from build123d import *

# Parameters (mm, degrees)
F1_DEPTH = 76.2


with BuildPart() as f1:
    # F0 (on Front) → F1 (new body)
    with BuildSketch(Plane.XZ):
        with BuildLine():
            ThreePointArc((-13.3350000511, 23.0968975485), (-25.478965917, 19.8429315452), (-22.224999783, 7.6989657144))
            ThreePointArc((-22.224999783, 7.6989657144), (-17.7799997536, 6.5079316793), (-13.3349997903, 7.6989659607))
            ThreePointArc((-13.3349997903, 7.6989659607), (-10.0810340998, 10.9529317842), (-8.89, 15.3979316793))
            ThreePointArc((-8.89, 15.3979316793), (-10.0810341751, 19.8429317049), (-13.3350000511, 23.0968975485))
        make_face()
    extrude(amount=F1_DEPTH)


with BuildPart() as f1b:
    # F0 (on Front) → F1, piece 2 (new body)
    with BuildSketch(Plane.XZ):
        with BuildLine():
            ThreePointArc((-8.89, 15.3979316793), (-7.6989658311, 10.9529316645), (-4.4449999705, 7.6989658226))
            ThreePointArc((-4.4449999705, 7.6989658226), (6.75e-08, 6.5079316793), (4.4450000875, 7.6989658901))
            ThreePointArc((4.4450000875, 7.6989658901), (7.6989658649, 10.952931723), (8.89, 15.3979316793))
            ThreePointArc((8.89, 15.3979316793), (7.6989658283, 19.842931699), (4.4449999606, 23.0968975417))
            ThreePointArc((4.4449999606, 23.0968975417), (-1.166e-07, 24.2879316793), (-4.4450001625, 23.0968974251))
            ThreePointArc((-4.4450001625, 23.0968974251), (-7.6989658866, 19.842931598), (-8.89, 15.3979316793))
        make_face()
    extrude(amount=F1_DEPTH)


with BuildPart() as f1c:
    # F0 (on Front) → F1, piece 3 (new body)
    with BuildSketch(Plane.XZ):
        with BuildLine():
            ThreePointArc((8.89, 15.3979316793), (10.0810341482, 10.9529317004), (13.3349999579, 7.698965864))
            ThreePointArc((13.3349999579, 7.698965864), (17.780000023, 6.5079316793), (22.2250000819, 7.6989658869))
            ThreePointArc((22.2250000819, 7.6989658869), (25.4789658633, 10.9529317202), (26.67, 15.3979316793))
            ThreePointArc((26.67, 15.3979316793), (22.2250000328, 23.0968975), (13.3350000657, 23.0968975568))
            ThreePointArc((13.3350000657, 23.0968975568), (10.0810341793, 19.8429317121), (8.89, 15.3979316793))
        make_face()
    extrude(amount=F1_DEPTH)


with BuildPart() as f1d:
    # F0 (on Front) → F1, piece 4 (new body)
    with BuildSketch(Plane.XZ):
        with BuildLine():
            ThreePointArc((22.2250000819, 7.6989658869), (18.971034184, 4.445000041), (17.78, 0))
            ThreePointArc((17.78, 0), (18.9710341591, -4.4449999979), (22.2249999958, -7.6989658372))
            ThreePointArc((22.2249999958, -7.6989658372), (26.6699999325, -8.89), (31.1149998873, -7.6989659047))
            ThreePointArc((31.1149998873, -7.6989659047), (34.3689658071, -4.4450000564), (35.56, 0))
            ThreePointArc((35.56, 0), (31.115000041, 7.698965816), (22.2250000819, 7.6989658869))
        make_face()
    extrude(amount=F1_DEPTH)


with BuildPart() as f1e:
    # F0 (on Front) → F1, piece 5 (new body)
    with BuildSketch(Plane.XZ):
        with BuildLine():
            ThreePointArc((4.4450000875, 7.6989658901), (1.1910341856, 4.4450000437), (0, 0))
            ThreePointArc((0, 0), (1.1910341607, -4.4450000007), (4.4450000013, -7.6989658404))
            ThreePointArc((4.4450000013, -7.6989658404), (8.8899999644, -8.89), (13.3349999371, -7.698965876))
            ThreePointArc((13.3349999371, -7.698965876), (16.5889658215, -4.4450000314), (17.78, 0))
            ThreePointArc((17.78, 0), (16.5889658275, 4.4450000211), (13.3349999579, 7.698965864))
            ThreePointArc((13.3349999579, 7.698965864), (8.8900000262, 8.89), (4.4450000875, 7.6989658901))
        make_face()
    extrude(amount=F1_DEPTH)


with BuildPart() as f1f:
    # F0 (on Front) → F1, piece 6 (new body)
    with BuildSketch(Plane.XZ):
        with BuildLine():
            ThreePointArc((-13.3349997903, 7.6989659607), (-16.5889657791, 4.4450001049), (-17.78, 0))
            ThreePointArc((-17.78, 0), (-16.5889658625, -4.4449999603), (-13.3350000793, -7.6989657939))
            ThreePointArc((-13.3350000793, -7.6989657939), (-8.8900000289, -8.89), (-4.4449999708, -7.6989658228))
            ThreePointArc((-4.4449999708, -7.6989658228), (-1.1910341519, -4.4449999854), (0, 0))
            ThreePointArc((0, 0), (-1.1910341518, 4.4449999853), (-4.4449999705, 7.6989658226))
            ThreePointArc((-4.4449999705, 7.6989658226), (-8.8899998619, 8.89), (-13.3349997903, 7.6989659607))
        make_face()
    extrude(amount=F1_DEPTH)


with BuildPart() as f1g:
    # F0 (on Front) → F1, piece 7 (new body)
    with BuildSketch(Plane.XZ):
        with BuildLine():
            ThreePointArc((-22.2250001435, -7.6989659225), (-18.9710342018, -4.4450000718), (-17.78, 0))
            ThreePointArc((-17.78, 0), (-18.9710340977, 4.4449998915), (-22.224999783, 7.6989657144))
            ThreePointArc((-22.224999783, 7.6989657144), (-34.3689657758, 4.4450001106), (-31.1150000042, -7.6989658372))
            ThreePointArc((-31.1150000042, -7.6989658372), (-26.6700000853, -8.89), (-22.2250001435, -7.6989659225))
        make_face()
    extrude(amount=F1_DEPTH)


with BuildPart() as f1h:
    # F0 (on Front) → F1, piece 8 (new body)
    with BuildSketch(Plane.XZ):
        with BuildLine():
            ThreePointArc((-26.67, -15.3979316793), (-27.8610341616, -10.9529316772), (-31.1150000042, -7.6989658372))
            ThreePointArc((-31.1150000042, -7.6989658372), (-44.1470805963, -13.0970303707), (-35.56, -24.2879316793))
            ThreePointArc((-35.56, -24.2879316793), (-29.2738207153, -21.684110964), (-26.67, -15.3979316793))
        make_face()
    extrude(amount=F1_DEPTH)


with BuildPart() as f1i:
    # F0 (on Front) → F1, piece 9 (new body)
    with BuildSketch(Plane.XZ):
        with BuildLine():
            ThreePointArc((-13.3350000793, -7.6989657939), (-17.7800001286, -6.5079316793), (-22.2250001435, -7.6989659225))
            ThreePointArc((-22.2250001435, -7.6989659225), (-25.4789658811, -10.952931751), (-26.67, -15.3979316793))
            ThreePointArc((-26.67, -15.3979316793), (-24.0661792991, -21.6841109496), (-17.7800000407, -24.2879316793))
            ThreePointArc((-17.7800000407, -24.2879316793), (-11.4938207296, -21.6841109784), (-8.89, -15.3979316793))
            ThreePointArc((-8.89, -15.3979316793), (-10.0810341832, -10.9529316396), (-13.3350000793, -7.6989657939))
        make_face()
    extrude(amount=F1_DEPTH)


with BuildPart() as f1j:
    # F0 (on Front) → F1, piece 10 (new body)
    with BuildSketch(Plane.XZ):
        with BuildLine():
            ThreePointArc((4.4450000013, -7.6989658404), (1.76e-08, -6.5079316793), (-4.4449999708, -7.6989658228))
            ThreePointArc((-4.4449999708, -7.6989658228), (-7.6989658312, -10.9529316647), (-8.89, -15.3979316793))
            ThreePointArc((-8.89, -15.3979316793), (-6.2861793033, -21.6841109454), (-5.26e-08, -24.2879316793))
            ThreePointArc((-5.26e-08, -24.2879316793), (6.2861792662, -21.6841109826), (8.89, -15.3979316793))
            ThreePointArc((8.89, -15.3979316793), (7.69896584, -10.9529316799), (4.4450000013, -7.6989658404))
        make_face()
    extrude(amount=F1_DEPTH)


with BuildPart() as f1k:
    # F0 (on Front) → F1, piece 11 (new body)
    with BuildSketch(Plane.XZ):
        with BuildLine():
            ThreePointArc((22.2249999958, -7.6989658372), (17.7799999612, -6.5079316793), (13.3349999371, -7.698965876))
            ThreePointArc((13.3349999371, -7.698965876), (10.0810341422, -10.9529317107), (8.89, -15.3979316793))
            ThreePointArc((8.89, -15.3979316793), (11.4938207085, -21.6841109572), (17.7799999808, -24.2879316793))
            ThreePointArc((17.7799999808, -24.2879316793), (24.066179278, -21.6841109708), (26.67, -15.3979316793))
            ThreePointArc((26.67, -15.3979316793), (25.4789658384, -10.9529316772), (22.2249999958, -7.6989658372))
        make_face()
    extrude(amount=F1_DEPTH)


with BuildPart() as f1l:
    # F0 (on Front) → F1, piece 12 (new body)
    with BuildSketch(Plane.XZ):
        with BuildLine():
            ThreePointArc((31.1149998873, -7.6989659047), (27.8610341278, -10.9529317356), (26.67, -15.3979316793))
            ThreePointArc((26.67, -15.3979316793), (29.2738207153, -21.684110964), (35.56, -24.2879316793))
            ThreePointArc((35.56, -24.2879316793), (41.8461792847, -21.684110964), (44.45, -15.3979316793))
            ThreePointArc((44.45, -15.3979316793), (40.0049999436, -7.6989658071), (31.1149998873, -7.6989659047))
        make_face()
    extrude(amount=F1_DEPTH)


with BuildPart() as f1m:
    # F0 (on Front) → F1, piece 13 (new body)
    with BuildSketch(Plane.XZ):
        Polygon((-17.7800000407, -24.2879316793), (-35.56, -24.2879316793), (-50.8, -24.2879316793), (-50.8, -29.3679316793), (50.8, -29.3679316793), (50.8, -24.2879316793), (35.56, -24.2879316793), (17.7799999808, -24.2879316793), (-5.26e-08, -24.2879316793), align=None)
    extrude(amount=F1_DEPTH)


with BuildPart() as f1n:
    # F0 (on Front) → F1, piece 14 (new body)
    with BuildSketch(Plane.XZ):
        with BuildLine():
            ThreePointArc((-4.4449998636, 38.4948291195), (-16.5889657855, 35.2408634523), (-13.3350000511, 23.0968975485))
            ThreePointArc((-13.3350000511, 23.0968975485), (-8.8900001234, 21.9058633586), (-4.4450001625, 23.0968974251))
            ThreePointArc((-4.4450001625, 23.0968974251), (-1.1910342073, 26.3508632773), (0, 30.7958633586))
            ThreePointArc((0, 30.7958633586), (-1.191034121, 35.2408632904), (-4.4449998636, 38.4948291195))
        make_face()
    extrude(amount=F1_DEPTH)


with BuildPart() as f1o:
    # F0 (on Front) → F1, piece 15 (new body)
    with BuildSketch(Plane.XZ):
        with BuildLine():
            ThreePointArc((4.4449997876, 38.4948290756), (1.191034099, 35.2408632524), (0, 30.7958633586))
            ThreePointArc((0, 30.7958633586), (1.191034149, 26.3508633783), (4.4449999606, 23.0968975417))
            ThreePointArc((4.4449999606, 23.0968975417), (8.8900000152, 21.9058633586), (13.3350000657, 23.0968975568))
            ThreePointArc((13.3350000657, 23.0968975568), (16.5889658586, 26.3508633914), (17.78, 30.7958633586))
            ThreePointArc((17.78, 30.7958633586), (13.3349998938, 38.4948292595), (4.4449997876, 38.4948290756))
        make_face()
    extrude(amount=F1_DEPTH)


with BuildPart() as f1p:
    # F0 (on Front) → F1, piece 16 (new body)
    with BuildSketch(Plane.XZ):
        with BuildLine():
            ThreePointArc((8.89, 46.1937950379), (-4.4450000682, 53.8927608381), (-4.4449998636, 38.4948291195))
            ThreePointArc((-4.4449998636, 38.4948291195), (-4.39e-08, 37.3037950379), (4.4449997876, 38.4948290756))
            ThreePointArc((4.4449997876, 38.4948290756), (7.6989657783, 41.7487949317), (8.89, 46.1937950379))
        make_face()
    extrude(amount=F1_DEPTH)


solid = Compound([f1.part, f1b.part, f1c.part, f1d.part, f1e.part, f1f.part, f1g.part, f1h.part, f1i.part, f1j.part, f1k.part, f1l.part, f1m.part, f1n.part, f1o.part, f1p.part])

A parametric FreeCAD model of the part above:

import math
import FreeCAD as App
import Part
import Sketcher
Q = App.Units.Quantity

doc = App.newDocument("Part")
body = doc.addObject("PartDesign::Body", "Body")

# Sketch on XZ plane
sketch1 = body.newObject("Sketcher::SketchObject", "Sketch")
sketch1.AttachmentSupport = (doc.getObject("XZ_Plane"), [""])
sketch1.MapMode = "FlatFace"
sketch1.addGeometry([
    Part.ArcOfCircle(Part.Circle(App.Vector(-18, 15, 0), App.Vector(0, 0, 1), 9), math.radians(60), math.radians(240)),
    Part.ArcOfCircle(Part.Circle(App.Vector(-18, 15, 0), App.Vector(0, 0, 1), 9), math.radians(-120), math.radians(-60)),
    Part.ArcOfCircle(Part.Circle(App.Vector(-18, 15, 0), App.Vector(0, 0, 1), 9), math.radians(-60), math.radians(0)),
    Part.ArcOfCircle(Part.Circle(App.Vector(-18, 15, 0), App.Vector(0, 0, 1), 9), math.radians(0), math.radians(60)),
], False)
sketch1.addConstraint([
    Sketcher.Constraint("Tangent", 0, 2, 1, 1),
    Sketcher.Constraint("Tangent", 1, 2, 2, 1),
    Sketcher.Constraint("Tangent", 2, 2, 3, 1),
    Sketcher.Constraint("Tangent", 3, 2, 0, 1),
    Sketcher.Constraint("Equal", 0, 1),
    Sketcher.Constraint("Horizontal", 0, 2, 1, 2),
    Sketcher.Constraint("Horizontal", 3, 3, 2, 2),
    Sketcher.Constraint("Vertical", 1, 2, 3, 2),
    Sketcher.Constraint("Radius", 0, Q("0.35 in")),
    Sketcher.Constraint("DistanceX", 0, 3, -1, 1, Q("0.7 in")),
    Sketcher.Constraint("DistanceX", 0, 2, 1, 2, Q("0.35 in")),
    Sketcher.Constraint("DistanceY", -1, 1, 0, 3, Q("15.397932 mm")),
])
pad1 = body.newObject("PartDesign::Pad", "Pad")
pad1.Profile = sketch1
pad1.Length = Q("3 in")
body2 = doc.addObject("PartDesign::Body", "Body001")

# Sketch on XZ plane
sketch2 = body2.newObject("Sketcher::SketchObject", "Sketch001")
sketch2.AttachmentSupport = (doc.getObject("XZ_Plane001"), [""])
sketch2.MapMode = "FlatFace"
sketch2.addGeometry([
    Part.ArcOfCircle(Part.Circle(App.Vector(0, 15, 0), App.Vector(0, 0, 1), 9), math.radians(180), math.radians(240)),  # 0
    Part.ArcOfCircle(Part.Circle(App.Vector(0, 15, 0), App.Vector(0, 0, 1), 9), math.radians(-120), math.radians(-60)),  # 1
    Part.ArcOfCircle(Part.Circle(App.Vector(0, 15, 0), App.Vector(0, 0, 1), 9), math.radians(-60), math.radians(0)),  # 2
    Part.ArcOfCircle(Part.Circle(App.Vector(0, 15, 0), App.Vector(0, 0, 1), 9), math.radians(0), math.radians(60)),  # 3
    Part.ArcOfCircle(Part.Circle(App.Vector(0, 15, 0), App.Vector(0, 0, 1), 9), math.radians(60), math.radians(120)),  # 4
    Part.ArcOfCircle(Part.Circle(App.Vector(0, 15, 0), App.Vector(0, 0, 1), 9), math.radians(120), math.radians(180)),  # 5
], False)
sketch2.addConstraint([
    Sketcher.Constraint("Tangent", 0, 2, 1, 1),
    Sketcher.Constraint("Tangent", 1, 2, 2, 1),
    Sketcher.Constraint("Tangent", 2, 2, 3, 1),
    Sketcher.Constraint("Tangent", 3, 2, 4, 1),
    Sketcher.Constraint("Tangent", 4, 2, 5, 1),
    Sketcher.Constraint("Tangent", 5, 2, 0, 1),
    Sketcher.Constraint("Coincident", 2, 3, 0, 3),
    Sketcher.Constraint("Equal", 2, 3),
    Sketcher.Constraint("Symmetric", 0, 2, 1, 2, -2),
    Sketcher.Constraint("Horizontal", 5, 3, 2, 2),
    Sketcher.Constraint("Horizontal", 3, 2, 4, 2),
    Sketcher.Constraint("Horizontal", 2, 2, 5, 2),
    Sketcher.Constraint("Vertical", 1, 2, 3, 2),
    Sketcher.Constraint("Radius", 0, Q("0.35 in")),
    Sketcher.Constraint("DistanceX", 0, 2, -1, 1, Q("0.175 in")),
    Sketcher.Constraint("DistanceY", -1, 1, 0, 3, Q("15.397932 mm")),
])
pad2 = body2.newObject("PartDesign::Pad", "Pad001")
pad2.Profile = sketch2
pad2.Length = Q("3 in")
body3 = doc.addObject("PartDesign::Body", "Body002")

# Sketch on XZ plane
sketch3 = body3.newObject("Sketcher::SketchObject", "Sketch002")
sketch3.AttachmentSupport = (doc.getObject("XZ_Plane002"), [""])
sketch3.MapMode = "FlatFace"
sketch3.addGeometry([
    Part.ArcOfCircle(Part.Circle(App.Vector(18, 15, 0), App.Vector(0, 0, 1), 9), math.radians(-120), math.radians(-60)),
    Part.ArcOfCircle(Part.Circle(App.Vector(18, 15, 0), App.Vector(0, 0, 1), 9), math.radians(-60), math.radians(0)),
    Part.ArcOfCircle(Part.Circle(App.Vector(18, 15, 0), App.Vector(0, 0, 1), 9), math.radians(0), math.radians(120)),
    Part.ArcOfCircle(Part.Circle(App.Vector(18, 15, 0), App.Vector(0, 0, 1), 9), math.radians(120), math.radians(240)),
], False)
sketch3.addConstraint([
    Sketcher.Constraint("Tangent", 0, 2, 1, 1),
    Sketcher.Constraint("Tangent", 1, 2, 2, 1),
    Sketcher.Constraint("Tangent", 2, 2, 3, 1),
    Sketcher.Constraint("Tangent", 3, 2, 0, 1),
    Sketcher.Constraint("Equal", 0, 1),
    Sketcher.Constraint("Horizontal", 3, 3, 1, 2),
    Sketcher.Constraint("Horizontal", 0, 2, 3, 2),
    Sketcher.Constraint("Vertical", 2, 2, 3, 2),
    Sketcher.Constraint("Radius", 0, Q("0.35 in")),
    Sketcher.Constraint("DistanceX", -1, 1, 0, 3, Q("0.7 in")),
    Sketcher.Constraint("DistanceX", 3, 2, 0, 2, Q("0.35 in")),
    Sketcher.Constraint("DistanceY", -1, 1, 0, 3, Q("15.397932 mm")),
])
pad3 = body3.newObject("PartDesign::Pad", "Pad002")
pad3.Profile = sketch3
pad3.Length = Q("3 in")
body4 = doc.addObject("PartDesign::Body", "Body003")

# Sketch on XZ plane
sketch4 = body4.newObject("Sketcher::SketchObject", "Sketch003")
sketch4.AttachmentSupport = (doc.getObject("XZ_Plane003"), [""])
sketch4.MapMode = "FlatFace"
sketch4.addGeometry([
    Part.ArcOfCircle(Part.Circle(App.Vector(27, 0, 0), App.Vector(0, 0, 1), 9), math.radians(120), math.radians(180)),  # 0
    Part.ArcOfCircle(Part.Circle(App.Vector(27, 0, 0), App.Vector(0, 0, 1), 9), math.radians(180), math.radians(240)),  # 1
    Part.ArcOfCircle(Part.Circle(App.Vector(27, 0, 0), App.Vector(0, 0, 1), 9), math.radians(-120), math.radians(-60)),  # 2
    Part.ArcOfCircle(Part.Circle(App.Vector(27, 0, 0), App.Vector(0, 0, 1), 9), math.radians(-60), math.radians(0)),  # 3
    Part.ArcOfCircle(Part.Circle(App.Vector(27, 0, 0), App.Vector(0, 0, 1), 9), math.radians(0), math.radians(120)),  # 4
], False)
sketch4.addConstraint([
    Sketcher.Constraint("Tangent", 0, 2, 1, 1),
    Sketcher.Constraint("Tangent", 1, 2, 2, 1),
    Sketcher.Constraint("Tangent", 2, 2, 3, 1),
    Sketcher.Constraint("Tangent", 3, 2, 4, 1),
    Sketcher.Constraint("Tangent", 4, 2, 0, 1),
    Sketcher.Constraint("Coincident", 2, 3, 0, 3),
    Sketcher.Constraint("Symmetric", 1, 2, 4, 2, -1),
    Sketcher.Constraint("PointOnObject", 0, 2, -1),
    Sketcher.Constraint("PointOnObject", 3, 2, -1),
    Sketcher.Constraint("Horizontal", 1, 2, 2, 2),
    Sketcher.Constraint("Radius", 0, Q("0.35 in")),
    Sketcher.Constraint("DistanceX", -1, 1, 0, 2, Q("0.7 in")),
    Sketcher.Constraint("DistanceX", 1, 2, 2, 2, Q("0.35 in")),
])
pad4 = body4.newObject("PartDesign::Pad", "Pad003")
pad4.Profile = sketch4
pad4.Length = Q("3 in")
body5 = doc.addObject("PartDesign::Body", "Body004")

# Sketch on XZ plane
sketch5 = body5.newObject("Sketcher::SketchObject", "Sketch004")
sketch5.AttachmentSupport = (doc.getObject("XZ_Plane004"), [""])
sketch5.MapMode = "FlatFace"
sketch5.addGeometry([
    Part.ArcOfCircle(Part.Circle(App.Vector(9, 0, 0), App.Vector(0, 0, 1), 9), math.radians(120), math.radians(180)),  # 0
    Part.ArcOfCircle(Part.Circle(App.Vector(9, 0, 0), App.Vector(0, 0, 1), 9), math.radians(180), math.radians(240)),  # 1
    Part.ArcOfCircle(Part.Circle(App.Vector(9, 0, 0), App.Vector(0, 0, 1), 9), math.radians(-120), math.radians(-60)),  # 2
    Part.ArcOfCircle(Part.Circle(App.Vector(9, 0, 0), App.Vector(0, 0, 1), 9), math.radians(-60), math.radians(60)),  # 3
    Part.ArcOfCircle(Part.Circle(App.Vector(9, 0, 0), App.Vector(0, 0, 1), 9), math.radians(60), math.radians(120)),  # 4
], False)
sketch5.addConstraint([
    Sketcher.Constraint("Tangent", 0, 2, 1, 1),
    Sketcher.Constraint("Tangent", 1, 2, 2, 1),
    Sketcher.Constraint("Tangent", 2, 2, 3, 1),
    Sketcher.Constraint("Tangent", 3, 2, 4, 1),
    Sketcher.Constraint("Tangent", 4, 2, 0, 1),
    Sketcher.Constraint("Coincident", 0, 2, -1, 1),
    Sketcher.Constraint("Coincident", 2, 3, 0, 3),
    Sketcher.Constraint("Symmetric", 2, 2, 3, 2, -1),
    Sketcher.Constraint("Horizontal", 1, 2, 2, 2),
    Sketcher.Constraint("Horizontal", 3, 2, 4, 2),
    Sketcher.Constraint("Radius", 0, Q("0.35 in")),
    Sketcher.Constraint("DistanceX", 1, 2, 2, 2, Q("0.35 in")),
])
pad5 = body5.newObject("PartDesign::Pad", "Pad004")
pad5.Profile = sketch5
pad5.Length = Q("3 in")
body6 = doc.addObject("PartDesign::Body", "Body005")

# Sketch on XZ plane
sketch6 = body6.newObject("Sketcher::SketchObject", "Sketch005")
sketch6.AttachmentSupport = (doc.getObject("XZ_Plane005"), [""])
sketch6.MapMode = "FlatFace"
sketch6.addGeometry([
    Part.ArcOfCircle(Part.Circle(App.Vector(-9, 0, 0), App.Vector(0, 0, 1), 9), math.radians(120), math.radians(180)),  # 0
    Part.ArcOfCircle(Part.Circle(App.Vector(-9, 0, 0), App.Vector(0, 0, 1), 9), math.radians(180), math.radians(240)),  # 1
    Part.ArcOfCircle(Part.Circle(App.Vector(-9, 0, 0), App.Vector(0, 0, 1), 9), math.radians(-120), math.radians(-60)),  # 2
    Part.ArcOfCircle(Part.Circle(App.Vector(-9, 0, 0), App.Vector(0, 0, 1), 9), math.radians(-60), math.radians(0)),  # 3
    Part.ArcOfCircle(Part.Circle(App.Vector(-9, 0, 0), App.Vector(0, 0, 1), 9), math.radians(0), math.radians(60)),  # 4
    Part.ArcOfCircle(Part.Circle(App.Vector(-9, 0, 0), App.Vector(0, 0, 1), 9), math.radians(60), math.radians(120)),  # 5
], False)
sketch6.addConstraint([
    Sketcher.Constraint("Tangent", 0, 2, 1, 1),
    Sketcher.Constraint("Tangent", 1, 2, 2, 1),
    Sketcher.Constraint("Tangent", 2, 2, 3, 1),
    Sketcher.Constraint("Tangent", 3, 2, 4, 1),
    Sketcher.Constraint("Tangent", 4, 2, 5, 1),
    Sketcher.Constraint("Tangent", 5, 2, 0, 1),
    Sketcher.Constraint("Coincident", 3, 2, -1, 1),
    Sketcher.Constraint("Coincident", 2, 3, 0, 3),
    Sketcher.Constraint("Equal", 2, 3),
    Sketcher.Constraint("Symmetric", 2, 2, 4, 2, -1),
    Sketcher.Constraint("PointOnObject", 0, 2, -1),
    Sketcher.Constraint("Horizontal", 1, 2, 2, 2),
    Sketcher.Constraint("Horizontal", 4, 2, 5, 2),
    Sketcher.Constraint("Radius", 0, Q("0.35 in")),
    Sketcher.Constraint("DistanceX", 5, 2, 4, 2, Q("0.35 in")),
])
pad6 = body6.newObject("PartDesign::Pad", "Pad005")
pad6.Profile = sketch6
pad6.Length = Q("3 in")
body7 = doc.addObject("PartDesign::Body", "Body006")

# Sketch on XZ plane
sketch7 = body7.newObject("Sketcher::SketchObject", "Sketch006")
sketch7.AttachmentSupport = (doc.getObject("XZ_Plane006"), [""])
sketch7.MapMode = "FlatFace"
sketch7.addGeometry([
    Part.ArcOfCircle(Part.Circle(App.Vector(-27, 0, 0), App.Vector(0, 0, 1), 9), math.radians(-60), math.radians(0)),
    Part.ArcOfCircle(Part.Circle(App.Vector(-27, 0, 0), App.Vector(0, 0, 1), 9), math.radians(0), math.radians(60)),
    Part.ArcOfCircle(Part.Circle(App.Vector(-27, 0, 0), App.Vector(0, 0, 1), 9), math.radians(60), math.radians(240)),
    Part.ArcOfCircle(Part.Circle(App.Vector(-27, 0, 0), App.Vector(0, 0, 1), 9), math.radians(-120), math.radians(-60)),
], False)
sketch7.addConstraint([
    Sketcher.Constraint("Tangent", 0, 2, 1, 1),
    Sketcher.Constraint("Tangent", 1, 2, 2, 1),
    Sketcher.Constraint("Tangent", 2, 2, 3, 1),
    Sketcher.Constraint("Tangent", 3, 2, 0, 1),
    Sketcher.Constraint("Equal", 0, 1),
    Sketcher.Constraint("Symmetric", 1, 2, 3, 2, -1),
    Sketcher.Constraint("PointOnObject", 0, 2, -1),
    Sketcher.Constraint("Horizontal", 2, 2, 3, 2),
    Sketcher.Constraint("Radius", 0, Q("0.35 in")),
    Sketcher.Constraint("DistanceX", 0, 2, -1, 1, Q("0.7 in")),
    Sketcher.Constraint("DistanceX", 2, 2, 3, 2, Q("0.35 in")),
])
pad7 = body7.newObject("PartDesign::Pad", "Pad006")
pad7.Profile = sketch7
pad7.Length = Q("3 in")
body8 = doc.addObject("PartDesign::Body", "Body007")

# Sketch on XZ plane
sketch8 = body8.newObject("Sketcher::SketchObject", "Sketch007")
sketch8.AttachmentSupport = (doc.getObject("XZ_Plane007"), [""])
sketch8.MapMode = "FlatFace"
sketch8.addGeometry([
    Part.ArcOfCircle(Part.Circle(App.Vector(-36, -15, 0), App.Vector(0, 0, 1), 9), math.radians(0), math.radians(60)),
    Part.ArcOfCircle(Part.Circle(App.Vector(-36, -15, 0), App.Vector(0, 0, 1), 9), math.radians(60), math.radians(270)),
    Part.ArcOfCircle(Part.Circle(App.Vector(-36, -15, 0), App.Vector(0, 0, 1), 9), math.radians(-90), math.radians(0)),
], False)
sketch8.addConstraint([
    Sketcher.Constraint("Tangent", 0, 2, 1, 1),
    Sketcher.Constraint("Tangent", 1, 2, 2, 1),
    Sketcher.Constraint("Tangent", 2, 2, 0, 1),
    Sketcher.Constraint("Horizontal", 1, 3, 2, 2),
    Sketcher.Constraint("Vertical", 2, 3, 1, 2),
    Sketcher.Constraint("Radius", 0, Q("0.35 in")),
    Sketcher.Constraint("DistanceX", 0, 3, -1, 1, Q("1.4 in")),
    Sketcher.Constraint("DistanceX", 0, 2, -1, 1, Q("1.225 in")),
    Sketcher.Constraint("DistanceY", 0, 3, -1, 1, Q("15.397932 mm")),
])
pad8 = body8.newObject("PartDesign::Pad", "Pad007")
pad8.Profile = sketch8
pad8.Length = Q("3 in")
body9 = doc.addObject("PartDesign::Body", "Body008")

# Sketch on XZ plane
sketch9 = body9.newObject("Sketcher::SketchObject", "Sketch008")
sketch9.AttachmentSupport = (doc.getObject("XZ_Plane008"), [""])
sketch9.MapMode = "FlatFace"
sketch9.addGeometry([
    Part.ArcOfCircle(Part.Circle(App.Vector(-18, -15, 0), App.Vector(0, 0, 1), 9), math.radians(60), math.radians(120)),  # 0
    Part.ArcOfCircle(Part.Circle(App.Vector(-18, -15, 0), App.Vector(0, 0, 1), 9), math.radians(120), math.radians(180)),  # 1
    Part.ArcOfCircle(Part.Circle(App.Vector(-18, -15, 0), App.Vector(0, 0, 1), 9), math.radians(180), math.radians(270)),  # 2
    Part.ArcOfCircle(Part.Circle(App.Vector(-18, -15, 0), App.Vector(0, 0, 1), 9), math.radians(-90), math.radians(0)),  # 3
    Part.ArcOfCircle(Part.Circle(App.Vector(-18, -15, 0), App.Vector(0, 0, 1), 9), math.radians(0), math.radians(60)),  # 4
], False)
sketch9.addConstraint([
    Sketcher.Constraint("Tangent", 0, 2, 1, 1),
    Sketcher.Constraint("Tangent", 1, 2, 2, 1),
    Sketcher.Constraint("Tangent", 2, 2, 3, 1),
    Sketcher.Constraint("Tangent", 3, 2, 4, 1),
    Sketcher.Constraint("Tangent", 4, 2, 0, 1),
    Sketcher.Constraint("Coincident", 2, 3, 0, 3),
    Sketcher.Constraint("Horizontal", 4, 3, 1, 2),
    Sketcher.Constraint("Horizontal", 1, 2, 3, 2),
    Sketcher.Constraint("Horizontal", 0, 2, 4, 2),
    Sketcher.Constraint("Vertical", 4, 3, 2, 2),
    Sketcher.Constraint("Radius", 0, Q("0.35 in")),
    Sketcher.Constraint("DistanceX", 0, 3, -1, 1, Q("0.7 in")),
    Sketcher.Constraint("DistanceX", 0, 2, -1, 1, Q("0.875 in")),
    Sketcher.Constraint("DistanceY", 0, 3, -1, 1, Q("15.397932 mm")),
])
pad9 = body9.newObject("PartDesign::Pad", "Pad008")
pad9.Profile = sketch9
pad9.Length = Q("3 in")
body10 = doc.addObject("PartDesign::Body", "Body009")

# Sketch on XZ plane
sketch10 = body10.newObject("Sketcher::SketchObject", "Sketch009")
sketch10.AttachmentSupport = (doc.getObject("XZ_Plane009"), [""])
sketch10.MapMode = "FlatFace"
sketch10.addGeometry([
    Part.ArcOfCircle(Part.Circle(App.Vector(0, -15, 0), App.Vector(0, 0, 1), 9), math.radians(180), math.radians(270)),
    Part.ArcOfCircle(Part.Circle(App.Vector(0, -15, 0), App.Vector(0, 0, 1), 9), math.radians(-90), math.radians(0)),
    Part.ArcOfCircle(Part.Circle(App.Vector(0, -15, 0), App.Vector(0, 0, 1), 9), math.radians(0), math.radians(180)),
], False)
sketch10.addConstraint([
    Sketcher.Constraint("Tangent", 0, 2, 1, 1),
    Sketcher.Constraint("Tangent", 1, 2, 2, 1),
    Sketcher.Constraint("Tangent", 2, 2, 0, 1),
    Sketcher.Constraint("Symmetric", 1, 2, 2, 2, -2),
    Sketcher.Constraint("PointOnObject", 0, 2, -2),
    Sketcher.Constraint("Horizontal", 2, 3, 1, 2),
    Sketcher.Constraint("Radius", 0, Q("0.35 in")),
    Sketcher.Constraint("DistanceY", 0, 3, -1, 1, Q("15.397932 mm")),
])
pad10 = body10.newObject("PartDesign::Pad", "Pad009")
pad10.Profile = sketch10
pad10.Length = Q("3 in")
body11 = doc.addObject("PartDesign::Body", "Body010")

# Sketch on XZ plane
sketch11 = body11.newObject("Sketcher::SketchObject", "Sketch010")
sketch11.AttachmentSupport = (doc.getObject("XZ_Plane010"), [""])
sketch11.MapMode = "FlatFace"
sketch11.addGeometry([
    Part.ArcOfCircle(Part.Circle(App.Vector(18, -15, 0), App.Vector(0, 0, 1), 9), math.radians(60), math.radians(120)),  # 0
    Part.ArcOfCircle(Part.Circle(App.Vector(18, -15, 0), App.Vector(0, 0, 1), 9), math.radians(120), math.radians(180)),  # 1
    Part.ArcOfCircle(Part.Circle(App.Vector(18, -15, 0), App.Vector(0, 0, 1), 9), math.radians(180), math.radians(270)),  # 2
    Part.ArcOfCircle(Part.Circle(App.Vector(18, -15, 0), App.Vector(0, 0, 1), 9), math.radians(-90), math.radians(0)),  # 3
    Part.ArcOfCircle(Part.Circle(App.Vector(18, -15, 0), App.Vector(0, 0, 1), 9), math.radians(0), math.radians(60)),  # 4
], False)
sketch11.addConstraint([
    Sketcher.Constraint("Tangent", 0, 2, 1, 1),
    Sketcher.Constraint("Tangent", 1, 2, 2, 1),
    Sketcher.Constraint("Tangent", 2, 2, 3, 1),
    Sketcher.Constraint("Tangent", 3, 2, 4, 1),
    Sketcher.Constraint("Tangent", 4, 2, 0, 1),
    Sketcher.Constraint("Coincident", 2, 3, 0, 3),
    Sketcher.Constraint("Horizontal", 4, 3, 1, 2),
    Sketcher.Constraint("Horizontal", 1, 2, 3, 2),
    Sketcher.Constraint("Horizontal", 0, 2, 4, 2),
    Sketcher.Constraint("Vertical", 4, 3, 2, 2),
    Sketcher.Constraint("Radius", 0, Q("0.35 in")),
    Sketcher.Constraint("DistanceX", -1, 1, 0, 3, Q("0.7 in")),
    Sketcher.Constraint("DistanceX", -1, 1, 0, 2, Q("0.525 in")),
    Sketcher.Constraint("DistanceY", 0, 3, -1, 1, Q("15.397932 mm")),
])
pad11 = body11.newObject("PartDesign::Pad", "Pad010")
pad11.Profile = sketch11
pad11.Length = Q("3 in")
body12 = doc.addObject("PartDesign::Body", "Body011")

# Sketch on XZ plane
sketch12 = body12.newObject("Sketcher::SketchObject", "Sketch011")
sketch12.AttachmentSupport = (doc.getObject("XZ_Plane011"), [""])
sketch12.MapMode = "FlatFace"
sketch12.addGeometry([
    Part.ArcOfCircle(Part.Circle(App.Vector(36, -15, 0), App.Vector(0, 0, 1), 9), math.radians(120), math.radians(180)),
    Part.ArcOfCircle(Part.Circle(App.Vector(36, -15, 0), App.Vector(0, 0, 1), 9), math.radians(180), math.radians(270)),
    Part.ArcOfCircle(Part.Circle(App.Vector(36, -15, 0), App.Vector(0, 0, 1), 9), math.radians(-90), math.radians(0)),
    Part.ArcOfCircle(Part.Circle(App.Vector(36, -15, 0), App.Vector(0, 0, 1), 9), math.radians(0), math.radians(120)),
], False)
sketch12.addConstraint([
    Sketcher.Constraint("Tangent", 0, 2, 1, 1),
    Sketcher.Constraint("Tangent", 1, 2, 2, 1),
    Sketcher.Constraint("Tangent", 2, 2, 3, 1),
    Sketcher.Constraint("Tangent", 3, 2, 0, 1),
    Sketcher.Constraint("Equal", 0, 1),
    Sketcher.Constraint("Horizontal", 3, 3, 0, 2),
    Sketcher.Constraint("Horizontal", 0, 2, 2, 2),
    Sketcher.Constraint("Vertical", 3, 3, 1, 2),
    Sketcher.Constraint("Radius", 0, Q("0.35 in")),
    Sketcher.Constraint("DistanceX", -1, 1, 0, 3, Q("1.4 in")),
    Sketcher.Constraint("DistanceX", -1, 1, 3, 2, Q("1.225 in")),
    Sketcher.Constraint("DistanceY", 0, 3, -1, 1, Q("15.397932 mm")),
])
pad12 = body12.newObject("PartDesign::Pad", "Pad011")
pad12.Profile = sketch12
pad12.Length = Q("3 in")
body13 = doc.addObject("PartDesign::Body", "Body012")

# Sketch on XZ plane
sketch13 = body13.newObject("Sketcher::SketchObject", "Sketch012")
sketch13.AttachmentSupport = (doc.getObject("XZ_Plane012"), [""])
sketch13.MapMode = "FlatFace"
sketch13.addGeometry([
    Part.LineSegment(App.Vector(-51, -24, 0), App.Vector(-51, -29, 0)),
    Part.LineSegment(App.Vector(-51, -29, 0), App.Vector(51, -29, 0)),
    Part.LineSegment(App.Vector(51, -29, 0), App.Vector(51, -24, 0)),
    Part.LineSegment(App.Vector(51, -24, 0), App.Vector(-51, -24, 0)),
], False)
sketch13.addConstraint([
    Sketcher.Constraint("Coincident", 0, 2, 1, 1),
    Sketcher.Constraint("Coincident", 1, 2, 2, 1),
    Sketcher.Constraint("Coincident", 2, 2, 3, 1),
    Sketcher.Constraint("Coincident", 3, 2, 0, 1),
    Sketcher.Constraint("Vertical", 0),
    Sketcher.Constraint("Horizontal", 1),
    Sketcher.Constraint("Vertical", 2),
    Sketcher.Constraint("Horizontal", 3),
    Sketcher.Constraint("DistanceX", 1, 1, 1, 2, Q("4 in")),
    Sketcher.Constraint("DistanceY", 0, 2, 0, 1, Q("0.2 in")),
    Sketcher.Constraint("DistanceX", 0, 2, -1, 1, Q("2 in")),
    Sketcher.Constraint("DistanceY", 0, 2, -1, 1, Q("29.367932 mm")),
])
pad13 = body13.newObject("PartDesign::Pad", "Pad012")
pad13.Profile = sketch13
pad13.Length = Q("3 in")
body14 = doc.addObject("PartDesign::Body", "Body013")

# Sketch on XZ plane
sketch14 = body14.newObject("Sketcher::SketchObject", "Sketch013")
sketch14.AttachmentSupport = (doc.getObject("XZ_Plane013"), [""])
sketch14.MapMode = "FlatFace"
sketch14.addGeometry([
    Part.ArcOfCircle(Part.Circle(App.Vector(-9, 31, 0), App.Vector(0, 0, 1), 9), math.radians(60), math.radians(240)),
    Part.ArcOfCircle(Part.Circle(App.Vector(-9, 31, 0), App.Vector(0, 0, 1), 9), math.radians(-120), math.radians(-60)),
    Part.ArcOfCircle(Part.Circle(App.Vector(-9, 31, 0), App.Vector(0, 0, 1), 9), math.radians(-60), math.radians(0)),
    Part.ArcOfCircle(Part.Circle(App.Vector(-9, 31, 0), App.Vector(0, 0, 1), 9), math.radians(0), math.radians(60)),
], False)
sketch14.addConstraint([
    Sketcher.Constraint("Tangent", 0, 2, 1, 1),
    Sketcher.Constraint("Tangent", 1, 2, 2, 1),
    Sketcher.Constraint("Tangent", 2, 2, 3, 1),
    Sketcher.Constraint("Tangent", 3, 2, 0, 1),
    Sketcher.Constraint("Equal", 0, 1),
    Sketcher.Constraint("PointOnObject", 2, 2, -2),
    Sketcher.Constraint("Horizontal", 0, 2, 1, 2),
    Sketcher.Constraint("Horizontal", 3, 3, 2, 2),
    Sketcher.Constraint("Vertical", 1, 2, 3, 2),
    Sketcher.Constraint("Radius", 0, Q("0.35 in")),
    Sketcher.Constraint("DistanceX", 0, 2, 1, 2, Q("0.35 in")),
    Sketcher.Constraint("DistanceY", -1, 1, 3, 2, Q("38.494829 mm")),
])
pad14 = body14.newObject("PartDesign::Pad", "Pad013")
pad14.Profile = sketch14
pad14.Length = Q("3 in")
body15 = doc.addObject("PartDesign::Body", "Body014")

# Sketch on XZ plane
sketch15 = body15.newObject("Sketcher::SketchObject", "Sketch014")
sketch15.AttachmentSupport = (doc.getObject("XZ_Plane014"), [""])
sketch15.MapMode = "FlatFace"
sketch15.addGeometry([
    Part.ArcOfCircle(Part.Circle(App.Vector(9, 31, 0), App.Vector(0, 0, 1), 9), math.radians(120), math.radians(180)),  # 0
    Part.ArcOfCircle(Part.Circle(App.Vector(9, 31, 0), App.Vector(0, 0, 1), 9), math.radians(180), math.radians(240)),  # 1
    Part.ArcOfCircle(Part.Circle(App.Vector(9, 31, 0), App.Vector(0, 0, 1), 9), math.radians(-120), math.radians(-60)),  # 2
    Part.ArcOfCircle(Part.Circle(App.Vector(9, 31, 0), App.Vector(0, 0, 1), 9), math.radians(-60), math.radians(0)),  # 3
    Part.ArcOfCircle(Part.Circle(App.Vector(9, 31, 0), App.Vector(0, 0, 1), 9), math.radians(0), math.radians(120)),  # 4
], False)
sketch15.addConstraint([
    Sketcher.Constraint("Tangent", 0, 2, 1, 1),
    Sketcher.Constraint("Tangent", 1, 2, 2, 1),
    Sketcher.Constraint("Tangent", 2, 2, 3, 1),
    Sketcher.Constraint("Tangent", 3, 2, 4, 1),
    Sketcher.Constraint("Tangent", 4, 2, 0, 1),
    Sketcher.Constraint("Coincident", 2, 3, 0, 3),
    Sketcher.Constraint("PointOnObject", 0, 2, -2),
    Sketcher.Constraint("Horizontal", 4, 3, 0, 2),
    Sketcher.Constraint("Horizontal", 1, 2, 2, 2),
    Sketcher.Constraint("Horizontal", 0, 2, 3, 2),
    Sketcher.Constraint("Vertical", 1, 2, 4, 2),
    Sketcher.Constraint("Radius", 0, Q("0.35 in")),
    Sketcher.Constraint("DistanceX", -1, 1, 1, 2, Q("0.175 in")),
    Sketcher.Constraint("DistanceY", -1, 1, 4, 2, Q("38.494829 mm")),
])
pad15 = body15.newObject("PartDesign::Pad", "Pad014")
pad15.Profile = sketch15
pad15.Length = Q("3 in")
body16 = doc.addObject("PartDesign::Body", "Body015")

# Sketch on XZ plane
sketch16 = body16.newObject("Sketcher::SketchObject", "Sketch015")
sketch16.AttachmentSupport = (doc.getObject("XZ_Plane015"), [""])
sketch16.MapMode = "FlatFace"
sketch16.addGeometry([
    Part.ArcOfCircle(Part.Circle(App.Vector(0, 46, 0), App.Vector(0, 0, 1), 9), math.radians(0), math.radians(240)),
    Part.ArcOfCircle(Part.Circle(App.Vector(0, 46, 0), App.Vector(0, 0, 1), 9), math.radians(-120), math.radians(-60)),
    Part.ArcOfCircle(Part.Circle(App.Vector(0, 46, 0), App.Vector(0, 0, 1), 9), math.radians(-60), math.radians(0)),
], False)
sketch16.addConstraint([
    Sketcher.Constraint("Tangent", 0, 2, 1, 1),
    Sketcher.Constraint("Tangent", 1, 2, 2, 1),
    Sketcher.Constraint("Tangent", 2, 2, 0, 1),
    Sketcher.Constraint("Symmetric", 0, 2, 1, 2, -2),
    Sketcher.Constraint("Horizontal", 1, 3, 2, 2),
    Sketcher.Constraint("Radius", 0, Q("0.35 in")),
    Sketcher.Constraint("DistanceX", 0, 2, 1, 2, Q("0.35 in")),
    Sketcher.Constraint("DistanceY", -1, 1, 0, 2, Q("38.494829 mm")),
])
pad16 = body16.newObject("PartDesign::Pad", "Pad015")
pad16.Profile = sketch16
pad16.Length = Q("3 in")

doc.recompute()
